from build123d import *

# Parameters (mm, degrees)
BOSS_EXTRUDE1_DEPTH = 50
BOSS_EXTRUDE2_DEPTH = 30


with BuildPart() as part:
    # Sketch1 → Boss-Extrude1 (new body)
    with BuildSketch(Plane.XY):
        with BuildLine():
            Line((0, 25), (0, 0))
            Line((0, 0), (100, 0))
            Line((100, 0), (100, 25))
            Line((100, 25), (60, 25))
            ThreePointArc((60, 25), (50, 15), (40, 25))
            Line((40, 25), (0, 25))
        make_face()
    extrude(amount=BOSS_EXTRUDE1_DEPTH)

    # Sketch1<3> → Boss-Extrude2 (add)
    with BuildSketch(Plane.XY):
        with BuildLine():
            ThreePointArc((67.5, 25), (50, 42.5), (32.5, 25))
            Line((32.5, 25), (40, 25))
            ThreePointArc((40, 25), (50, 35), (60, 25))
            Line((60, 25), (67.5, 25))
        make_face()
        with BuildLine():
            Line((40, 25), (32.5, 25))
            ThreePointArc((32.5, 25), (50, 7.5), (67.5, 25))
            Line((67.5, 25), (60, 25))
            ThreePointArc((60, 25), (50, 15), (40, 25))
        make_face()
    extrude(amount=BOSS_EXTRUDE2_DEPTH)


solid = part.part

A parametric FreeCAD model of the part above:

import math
import FreeCAD as App
import Part
import Sketcher

doc = App.newDocument("Part")
params = doc.addObject("Spreadsheet::Sheet", "Params")
for row, (alias, value) in enumerate([
    ("sketch1_radius", "10 mm"),
    ("sketch1_width", "100 mm"),
    ("sketch1_height", "25 mm"),
    ("pad1_length", "50 mm"),
    ("sketch2_diameter", "35 mm"),
    ("sketch2_diameter2", "20 mm"),
    ("pad2_length", "30 mm"),
], start=1):
    params.set(f"A{row}", alias)
    params.set(f"B{row}", "=" + value)
    params.setAlias(f"B{row}", alias)

body = doc.addObject("PartDesign::Body", "Body")

sketch1 = body.newObject("Sketcher::SketchObject", "Sketch")
sketch1.AttachmentSupport = (doc.getObject("XY_Plane"), [""])
sketch1.MapMode = "FlatFace"
sketch1.addGeometry(Part.LineSegment(App.Vector(0, 25, 0), App.Vector(0, 0, 0)), False)
sketch1.addGeometry(Part.LineSegment(App.Vector(0, 0, 0), App.Vector(100, 0, 0)), False)
sketch1.addGeometry(Part.LineSegment(App.Vector(100, 0, 0), App.Vector(100, 25, 0)), False)
sketch1.addGeometry(Part.LineSegment(App.Vector(100, 25, 0), App.Vector(60, 25, 0)), False)
sketch1.addGeometry(Part.ArcOfCircle(Part.Circle(App.Vector(50, 25, 0), App.Vector(0, 0, 1), 10), math.radians(180), math.radians(360)), False)
sketch1.addGeometry(Part.LineSegment(App.Vector(40, 25, 0), App.Vector(0, 25, 0)), False)
sketch1.addConstraint(Sketcher.Constraint("Coincident", 0, 2, 1, 1))
sketch1.addConstraint(Sketcher.Constraint("Coincident", 1, 2, 2, 1))
sketch1.addConstraint(Sketcher.Constraint("Coincident", 2, 2, 3, 1))
sketch1.addConstraint(Sketcher.Constraint("Coincident", 3, 2, 4, 2))
sketch1.addConstraint(Sketcher.Constraint("Coincident", 4, 1, 5, 1))
sketch1.addConstraint(Sketcher.Constraint("Coincident", 5, 2, 0, 1))
sketch1.addConstraint(Sketcher.Constraint("Vertical", 0))
sketch1.addConstraint(Sketcher.Constraint("Horizontal", 1))
sketch1.addConstraint(Sketcher.Constraint("Vertical", 2))
sketch1.addConstraint(Sketcher.Constraint("Horizontal", 3))
sketch1.addConstraint(Sketcher.Constraint("Horizontal", 5))
sketch1.addConstraint(Sketcher.Constraint("Coincident", 0, 2, -1, 1))
sketch1.addConstraint(Sketcher.Constraint("Horizontal", 4, 3, 2, 2))
sketch1.addConstraint(Sketcher.Constraint("Horizontal", 3, 2, 4, 1))
sketch1.addConstraint(Sketcher.Constraint("Equal", 3, 5))
sketch1.addConstraint(Sketcher.Constraint("Radius", 4, 10.0))
sketch1.addConstraint(Sketcher.Constraint("DistanceX", 1, 1, 1, 2, 100.0))
sketch1.addConstraint(Sketcher.Constraint("DistanceY", 0, 2, 0, 1, 25.0))
sketch1.setExpression("Constraints[15]", "Params.sketch1_radius")
sketch1.setExpression("Constraints[16]", "Params.sketch1_width")
sketch1.setExpression("Constraints[17]", "Params.sketch1_height")
pad1 = body.newObject("PartDesign::Pad", "Pad")
pad1.Profile = sketch1
pad1.setExpression("Length", "Params.pad1_length")

sketch2 = body.newObject("Sketcher::SketchObject", "Sketch001")
sketch2.AttachmentSupport = (doc.getObject("XY_Plane"), [""])
sketch2.MapMode = "FlatFace"
sketch2.addGeometry(Part.Circle(App.Vector(50, 25, 0), App.Vector(0, 0, 1), 17.5), False)
sketch2.addGeometry(Part.Circle(App.Vector(50, 25, 0), App.Vector(0, 0, 1), 10), False)
sketch2.addConstraint(Sketcher.Constraint("Coincident", 1, 3, 0, 3))
sketch2.addConstraint(Sketcher.Constraint("Diameter", 0, 35.0))
sketch2.addConstraint(Sketcher.Constraint("Diameter", 1, 20.0))
sketch2.addConstraint(Sketcher.Constraint("DistanceX", -1, 1, 0, 3, 50.0))
sketch2.addConstraint(Sketcher.Constraint("DistanceY", -1, 1, 0, 3, 25.0))
sketch2.setExpression("Constraints[1]", "Params.sketch2_diameter")
sketch2.setExpression("Constraints[2]", "Params.sketch2_diameter2")
pad2 = body.newObject("PartDesign::Pad", "Pad001")
pad2.Profile = sketch2
pad2.setExpression("Length", "Params.pad2_length")

doc.recompute()
